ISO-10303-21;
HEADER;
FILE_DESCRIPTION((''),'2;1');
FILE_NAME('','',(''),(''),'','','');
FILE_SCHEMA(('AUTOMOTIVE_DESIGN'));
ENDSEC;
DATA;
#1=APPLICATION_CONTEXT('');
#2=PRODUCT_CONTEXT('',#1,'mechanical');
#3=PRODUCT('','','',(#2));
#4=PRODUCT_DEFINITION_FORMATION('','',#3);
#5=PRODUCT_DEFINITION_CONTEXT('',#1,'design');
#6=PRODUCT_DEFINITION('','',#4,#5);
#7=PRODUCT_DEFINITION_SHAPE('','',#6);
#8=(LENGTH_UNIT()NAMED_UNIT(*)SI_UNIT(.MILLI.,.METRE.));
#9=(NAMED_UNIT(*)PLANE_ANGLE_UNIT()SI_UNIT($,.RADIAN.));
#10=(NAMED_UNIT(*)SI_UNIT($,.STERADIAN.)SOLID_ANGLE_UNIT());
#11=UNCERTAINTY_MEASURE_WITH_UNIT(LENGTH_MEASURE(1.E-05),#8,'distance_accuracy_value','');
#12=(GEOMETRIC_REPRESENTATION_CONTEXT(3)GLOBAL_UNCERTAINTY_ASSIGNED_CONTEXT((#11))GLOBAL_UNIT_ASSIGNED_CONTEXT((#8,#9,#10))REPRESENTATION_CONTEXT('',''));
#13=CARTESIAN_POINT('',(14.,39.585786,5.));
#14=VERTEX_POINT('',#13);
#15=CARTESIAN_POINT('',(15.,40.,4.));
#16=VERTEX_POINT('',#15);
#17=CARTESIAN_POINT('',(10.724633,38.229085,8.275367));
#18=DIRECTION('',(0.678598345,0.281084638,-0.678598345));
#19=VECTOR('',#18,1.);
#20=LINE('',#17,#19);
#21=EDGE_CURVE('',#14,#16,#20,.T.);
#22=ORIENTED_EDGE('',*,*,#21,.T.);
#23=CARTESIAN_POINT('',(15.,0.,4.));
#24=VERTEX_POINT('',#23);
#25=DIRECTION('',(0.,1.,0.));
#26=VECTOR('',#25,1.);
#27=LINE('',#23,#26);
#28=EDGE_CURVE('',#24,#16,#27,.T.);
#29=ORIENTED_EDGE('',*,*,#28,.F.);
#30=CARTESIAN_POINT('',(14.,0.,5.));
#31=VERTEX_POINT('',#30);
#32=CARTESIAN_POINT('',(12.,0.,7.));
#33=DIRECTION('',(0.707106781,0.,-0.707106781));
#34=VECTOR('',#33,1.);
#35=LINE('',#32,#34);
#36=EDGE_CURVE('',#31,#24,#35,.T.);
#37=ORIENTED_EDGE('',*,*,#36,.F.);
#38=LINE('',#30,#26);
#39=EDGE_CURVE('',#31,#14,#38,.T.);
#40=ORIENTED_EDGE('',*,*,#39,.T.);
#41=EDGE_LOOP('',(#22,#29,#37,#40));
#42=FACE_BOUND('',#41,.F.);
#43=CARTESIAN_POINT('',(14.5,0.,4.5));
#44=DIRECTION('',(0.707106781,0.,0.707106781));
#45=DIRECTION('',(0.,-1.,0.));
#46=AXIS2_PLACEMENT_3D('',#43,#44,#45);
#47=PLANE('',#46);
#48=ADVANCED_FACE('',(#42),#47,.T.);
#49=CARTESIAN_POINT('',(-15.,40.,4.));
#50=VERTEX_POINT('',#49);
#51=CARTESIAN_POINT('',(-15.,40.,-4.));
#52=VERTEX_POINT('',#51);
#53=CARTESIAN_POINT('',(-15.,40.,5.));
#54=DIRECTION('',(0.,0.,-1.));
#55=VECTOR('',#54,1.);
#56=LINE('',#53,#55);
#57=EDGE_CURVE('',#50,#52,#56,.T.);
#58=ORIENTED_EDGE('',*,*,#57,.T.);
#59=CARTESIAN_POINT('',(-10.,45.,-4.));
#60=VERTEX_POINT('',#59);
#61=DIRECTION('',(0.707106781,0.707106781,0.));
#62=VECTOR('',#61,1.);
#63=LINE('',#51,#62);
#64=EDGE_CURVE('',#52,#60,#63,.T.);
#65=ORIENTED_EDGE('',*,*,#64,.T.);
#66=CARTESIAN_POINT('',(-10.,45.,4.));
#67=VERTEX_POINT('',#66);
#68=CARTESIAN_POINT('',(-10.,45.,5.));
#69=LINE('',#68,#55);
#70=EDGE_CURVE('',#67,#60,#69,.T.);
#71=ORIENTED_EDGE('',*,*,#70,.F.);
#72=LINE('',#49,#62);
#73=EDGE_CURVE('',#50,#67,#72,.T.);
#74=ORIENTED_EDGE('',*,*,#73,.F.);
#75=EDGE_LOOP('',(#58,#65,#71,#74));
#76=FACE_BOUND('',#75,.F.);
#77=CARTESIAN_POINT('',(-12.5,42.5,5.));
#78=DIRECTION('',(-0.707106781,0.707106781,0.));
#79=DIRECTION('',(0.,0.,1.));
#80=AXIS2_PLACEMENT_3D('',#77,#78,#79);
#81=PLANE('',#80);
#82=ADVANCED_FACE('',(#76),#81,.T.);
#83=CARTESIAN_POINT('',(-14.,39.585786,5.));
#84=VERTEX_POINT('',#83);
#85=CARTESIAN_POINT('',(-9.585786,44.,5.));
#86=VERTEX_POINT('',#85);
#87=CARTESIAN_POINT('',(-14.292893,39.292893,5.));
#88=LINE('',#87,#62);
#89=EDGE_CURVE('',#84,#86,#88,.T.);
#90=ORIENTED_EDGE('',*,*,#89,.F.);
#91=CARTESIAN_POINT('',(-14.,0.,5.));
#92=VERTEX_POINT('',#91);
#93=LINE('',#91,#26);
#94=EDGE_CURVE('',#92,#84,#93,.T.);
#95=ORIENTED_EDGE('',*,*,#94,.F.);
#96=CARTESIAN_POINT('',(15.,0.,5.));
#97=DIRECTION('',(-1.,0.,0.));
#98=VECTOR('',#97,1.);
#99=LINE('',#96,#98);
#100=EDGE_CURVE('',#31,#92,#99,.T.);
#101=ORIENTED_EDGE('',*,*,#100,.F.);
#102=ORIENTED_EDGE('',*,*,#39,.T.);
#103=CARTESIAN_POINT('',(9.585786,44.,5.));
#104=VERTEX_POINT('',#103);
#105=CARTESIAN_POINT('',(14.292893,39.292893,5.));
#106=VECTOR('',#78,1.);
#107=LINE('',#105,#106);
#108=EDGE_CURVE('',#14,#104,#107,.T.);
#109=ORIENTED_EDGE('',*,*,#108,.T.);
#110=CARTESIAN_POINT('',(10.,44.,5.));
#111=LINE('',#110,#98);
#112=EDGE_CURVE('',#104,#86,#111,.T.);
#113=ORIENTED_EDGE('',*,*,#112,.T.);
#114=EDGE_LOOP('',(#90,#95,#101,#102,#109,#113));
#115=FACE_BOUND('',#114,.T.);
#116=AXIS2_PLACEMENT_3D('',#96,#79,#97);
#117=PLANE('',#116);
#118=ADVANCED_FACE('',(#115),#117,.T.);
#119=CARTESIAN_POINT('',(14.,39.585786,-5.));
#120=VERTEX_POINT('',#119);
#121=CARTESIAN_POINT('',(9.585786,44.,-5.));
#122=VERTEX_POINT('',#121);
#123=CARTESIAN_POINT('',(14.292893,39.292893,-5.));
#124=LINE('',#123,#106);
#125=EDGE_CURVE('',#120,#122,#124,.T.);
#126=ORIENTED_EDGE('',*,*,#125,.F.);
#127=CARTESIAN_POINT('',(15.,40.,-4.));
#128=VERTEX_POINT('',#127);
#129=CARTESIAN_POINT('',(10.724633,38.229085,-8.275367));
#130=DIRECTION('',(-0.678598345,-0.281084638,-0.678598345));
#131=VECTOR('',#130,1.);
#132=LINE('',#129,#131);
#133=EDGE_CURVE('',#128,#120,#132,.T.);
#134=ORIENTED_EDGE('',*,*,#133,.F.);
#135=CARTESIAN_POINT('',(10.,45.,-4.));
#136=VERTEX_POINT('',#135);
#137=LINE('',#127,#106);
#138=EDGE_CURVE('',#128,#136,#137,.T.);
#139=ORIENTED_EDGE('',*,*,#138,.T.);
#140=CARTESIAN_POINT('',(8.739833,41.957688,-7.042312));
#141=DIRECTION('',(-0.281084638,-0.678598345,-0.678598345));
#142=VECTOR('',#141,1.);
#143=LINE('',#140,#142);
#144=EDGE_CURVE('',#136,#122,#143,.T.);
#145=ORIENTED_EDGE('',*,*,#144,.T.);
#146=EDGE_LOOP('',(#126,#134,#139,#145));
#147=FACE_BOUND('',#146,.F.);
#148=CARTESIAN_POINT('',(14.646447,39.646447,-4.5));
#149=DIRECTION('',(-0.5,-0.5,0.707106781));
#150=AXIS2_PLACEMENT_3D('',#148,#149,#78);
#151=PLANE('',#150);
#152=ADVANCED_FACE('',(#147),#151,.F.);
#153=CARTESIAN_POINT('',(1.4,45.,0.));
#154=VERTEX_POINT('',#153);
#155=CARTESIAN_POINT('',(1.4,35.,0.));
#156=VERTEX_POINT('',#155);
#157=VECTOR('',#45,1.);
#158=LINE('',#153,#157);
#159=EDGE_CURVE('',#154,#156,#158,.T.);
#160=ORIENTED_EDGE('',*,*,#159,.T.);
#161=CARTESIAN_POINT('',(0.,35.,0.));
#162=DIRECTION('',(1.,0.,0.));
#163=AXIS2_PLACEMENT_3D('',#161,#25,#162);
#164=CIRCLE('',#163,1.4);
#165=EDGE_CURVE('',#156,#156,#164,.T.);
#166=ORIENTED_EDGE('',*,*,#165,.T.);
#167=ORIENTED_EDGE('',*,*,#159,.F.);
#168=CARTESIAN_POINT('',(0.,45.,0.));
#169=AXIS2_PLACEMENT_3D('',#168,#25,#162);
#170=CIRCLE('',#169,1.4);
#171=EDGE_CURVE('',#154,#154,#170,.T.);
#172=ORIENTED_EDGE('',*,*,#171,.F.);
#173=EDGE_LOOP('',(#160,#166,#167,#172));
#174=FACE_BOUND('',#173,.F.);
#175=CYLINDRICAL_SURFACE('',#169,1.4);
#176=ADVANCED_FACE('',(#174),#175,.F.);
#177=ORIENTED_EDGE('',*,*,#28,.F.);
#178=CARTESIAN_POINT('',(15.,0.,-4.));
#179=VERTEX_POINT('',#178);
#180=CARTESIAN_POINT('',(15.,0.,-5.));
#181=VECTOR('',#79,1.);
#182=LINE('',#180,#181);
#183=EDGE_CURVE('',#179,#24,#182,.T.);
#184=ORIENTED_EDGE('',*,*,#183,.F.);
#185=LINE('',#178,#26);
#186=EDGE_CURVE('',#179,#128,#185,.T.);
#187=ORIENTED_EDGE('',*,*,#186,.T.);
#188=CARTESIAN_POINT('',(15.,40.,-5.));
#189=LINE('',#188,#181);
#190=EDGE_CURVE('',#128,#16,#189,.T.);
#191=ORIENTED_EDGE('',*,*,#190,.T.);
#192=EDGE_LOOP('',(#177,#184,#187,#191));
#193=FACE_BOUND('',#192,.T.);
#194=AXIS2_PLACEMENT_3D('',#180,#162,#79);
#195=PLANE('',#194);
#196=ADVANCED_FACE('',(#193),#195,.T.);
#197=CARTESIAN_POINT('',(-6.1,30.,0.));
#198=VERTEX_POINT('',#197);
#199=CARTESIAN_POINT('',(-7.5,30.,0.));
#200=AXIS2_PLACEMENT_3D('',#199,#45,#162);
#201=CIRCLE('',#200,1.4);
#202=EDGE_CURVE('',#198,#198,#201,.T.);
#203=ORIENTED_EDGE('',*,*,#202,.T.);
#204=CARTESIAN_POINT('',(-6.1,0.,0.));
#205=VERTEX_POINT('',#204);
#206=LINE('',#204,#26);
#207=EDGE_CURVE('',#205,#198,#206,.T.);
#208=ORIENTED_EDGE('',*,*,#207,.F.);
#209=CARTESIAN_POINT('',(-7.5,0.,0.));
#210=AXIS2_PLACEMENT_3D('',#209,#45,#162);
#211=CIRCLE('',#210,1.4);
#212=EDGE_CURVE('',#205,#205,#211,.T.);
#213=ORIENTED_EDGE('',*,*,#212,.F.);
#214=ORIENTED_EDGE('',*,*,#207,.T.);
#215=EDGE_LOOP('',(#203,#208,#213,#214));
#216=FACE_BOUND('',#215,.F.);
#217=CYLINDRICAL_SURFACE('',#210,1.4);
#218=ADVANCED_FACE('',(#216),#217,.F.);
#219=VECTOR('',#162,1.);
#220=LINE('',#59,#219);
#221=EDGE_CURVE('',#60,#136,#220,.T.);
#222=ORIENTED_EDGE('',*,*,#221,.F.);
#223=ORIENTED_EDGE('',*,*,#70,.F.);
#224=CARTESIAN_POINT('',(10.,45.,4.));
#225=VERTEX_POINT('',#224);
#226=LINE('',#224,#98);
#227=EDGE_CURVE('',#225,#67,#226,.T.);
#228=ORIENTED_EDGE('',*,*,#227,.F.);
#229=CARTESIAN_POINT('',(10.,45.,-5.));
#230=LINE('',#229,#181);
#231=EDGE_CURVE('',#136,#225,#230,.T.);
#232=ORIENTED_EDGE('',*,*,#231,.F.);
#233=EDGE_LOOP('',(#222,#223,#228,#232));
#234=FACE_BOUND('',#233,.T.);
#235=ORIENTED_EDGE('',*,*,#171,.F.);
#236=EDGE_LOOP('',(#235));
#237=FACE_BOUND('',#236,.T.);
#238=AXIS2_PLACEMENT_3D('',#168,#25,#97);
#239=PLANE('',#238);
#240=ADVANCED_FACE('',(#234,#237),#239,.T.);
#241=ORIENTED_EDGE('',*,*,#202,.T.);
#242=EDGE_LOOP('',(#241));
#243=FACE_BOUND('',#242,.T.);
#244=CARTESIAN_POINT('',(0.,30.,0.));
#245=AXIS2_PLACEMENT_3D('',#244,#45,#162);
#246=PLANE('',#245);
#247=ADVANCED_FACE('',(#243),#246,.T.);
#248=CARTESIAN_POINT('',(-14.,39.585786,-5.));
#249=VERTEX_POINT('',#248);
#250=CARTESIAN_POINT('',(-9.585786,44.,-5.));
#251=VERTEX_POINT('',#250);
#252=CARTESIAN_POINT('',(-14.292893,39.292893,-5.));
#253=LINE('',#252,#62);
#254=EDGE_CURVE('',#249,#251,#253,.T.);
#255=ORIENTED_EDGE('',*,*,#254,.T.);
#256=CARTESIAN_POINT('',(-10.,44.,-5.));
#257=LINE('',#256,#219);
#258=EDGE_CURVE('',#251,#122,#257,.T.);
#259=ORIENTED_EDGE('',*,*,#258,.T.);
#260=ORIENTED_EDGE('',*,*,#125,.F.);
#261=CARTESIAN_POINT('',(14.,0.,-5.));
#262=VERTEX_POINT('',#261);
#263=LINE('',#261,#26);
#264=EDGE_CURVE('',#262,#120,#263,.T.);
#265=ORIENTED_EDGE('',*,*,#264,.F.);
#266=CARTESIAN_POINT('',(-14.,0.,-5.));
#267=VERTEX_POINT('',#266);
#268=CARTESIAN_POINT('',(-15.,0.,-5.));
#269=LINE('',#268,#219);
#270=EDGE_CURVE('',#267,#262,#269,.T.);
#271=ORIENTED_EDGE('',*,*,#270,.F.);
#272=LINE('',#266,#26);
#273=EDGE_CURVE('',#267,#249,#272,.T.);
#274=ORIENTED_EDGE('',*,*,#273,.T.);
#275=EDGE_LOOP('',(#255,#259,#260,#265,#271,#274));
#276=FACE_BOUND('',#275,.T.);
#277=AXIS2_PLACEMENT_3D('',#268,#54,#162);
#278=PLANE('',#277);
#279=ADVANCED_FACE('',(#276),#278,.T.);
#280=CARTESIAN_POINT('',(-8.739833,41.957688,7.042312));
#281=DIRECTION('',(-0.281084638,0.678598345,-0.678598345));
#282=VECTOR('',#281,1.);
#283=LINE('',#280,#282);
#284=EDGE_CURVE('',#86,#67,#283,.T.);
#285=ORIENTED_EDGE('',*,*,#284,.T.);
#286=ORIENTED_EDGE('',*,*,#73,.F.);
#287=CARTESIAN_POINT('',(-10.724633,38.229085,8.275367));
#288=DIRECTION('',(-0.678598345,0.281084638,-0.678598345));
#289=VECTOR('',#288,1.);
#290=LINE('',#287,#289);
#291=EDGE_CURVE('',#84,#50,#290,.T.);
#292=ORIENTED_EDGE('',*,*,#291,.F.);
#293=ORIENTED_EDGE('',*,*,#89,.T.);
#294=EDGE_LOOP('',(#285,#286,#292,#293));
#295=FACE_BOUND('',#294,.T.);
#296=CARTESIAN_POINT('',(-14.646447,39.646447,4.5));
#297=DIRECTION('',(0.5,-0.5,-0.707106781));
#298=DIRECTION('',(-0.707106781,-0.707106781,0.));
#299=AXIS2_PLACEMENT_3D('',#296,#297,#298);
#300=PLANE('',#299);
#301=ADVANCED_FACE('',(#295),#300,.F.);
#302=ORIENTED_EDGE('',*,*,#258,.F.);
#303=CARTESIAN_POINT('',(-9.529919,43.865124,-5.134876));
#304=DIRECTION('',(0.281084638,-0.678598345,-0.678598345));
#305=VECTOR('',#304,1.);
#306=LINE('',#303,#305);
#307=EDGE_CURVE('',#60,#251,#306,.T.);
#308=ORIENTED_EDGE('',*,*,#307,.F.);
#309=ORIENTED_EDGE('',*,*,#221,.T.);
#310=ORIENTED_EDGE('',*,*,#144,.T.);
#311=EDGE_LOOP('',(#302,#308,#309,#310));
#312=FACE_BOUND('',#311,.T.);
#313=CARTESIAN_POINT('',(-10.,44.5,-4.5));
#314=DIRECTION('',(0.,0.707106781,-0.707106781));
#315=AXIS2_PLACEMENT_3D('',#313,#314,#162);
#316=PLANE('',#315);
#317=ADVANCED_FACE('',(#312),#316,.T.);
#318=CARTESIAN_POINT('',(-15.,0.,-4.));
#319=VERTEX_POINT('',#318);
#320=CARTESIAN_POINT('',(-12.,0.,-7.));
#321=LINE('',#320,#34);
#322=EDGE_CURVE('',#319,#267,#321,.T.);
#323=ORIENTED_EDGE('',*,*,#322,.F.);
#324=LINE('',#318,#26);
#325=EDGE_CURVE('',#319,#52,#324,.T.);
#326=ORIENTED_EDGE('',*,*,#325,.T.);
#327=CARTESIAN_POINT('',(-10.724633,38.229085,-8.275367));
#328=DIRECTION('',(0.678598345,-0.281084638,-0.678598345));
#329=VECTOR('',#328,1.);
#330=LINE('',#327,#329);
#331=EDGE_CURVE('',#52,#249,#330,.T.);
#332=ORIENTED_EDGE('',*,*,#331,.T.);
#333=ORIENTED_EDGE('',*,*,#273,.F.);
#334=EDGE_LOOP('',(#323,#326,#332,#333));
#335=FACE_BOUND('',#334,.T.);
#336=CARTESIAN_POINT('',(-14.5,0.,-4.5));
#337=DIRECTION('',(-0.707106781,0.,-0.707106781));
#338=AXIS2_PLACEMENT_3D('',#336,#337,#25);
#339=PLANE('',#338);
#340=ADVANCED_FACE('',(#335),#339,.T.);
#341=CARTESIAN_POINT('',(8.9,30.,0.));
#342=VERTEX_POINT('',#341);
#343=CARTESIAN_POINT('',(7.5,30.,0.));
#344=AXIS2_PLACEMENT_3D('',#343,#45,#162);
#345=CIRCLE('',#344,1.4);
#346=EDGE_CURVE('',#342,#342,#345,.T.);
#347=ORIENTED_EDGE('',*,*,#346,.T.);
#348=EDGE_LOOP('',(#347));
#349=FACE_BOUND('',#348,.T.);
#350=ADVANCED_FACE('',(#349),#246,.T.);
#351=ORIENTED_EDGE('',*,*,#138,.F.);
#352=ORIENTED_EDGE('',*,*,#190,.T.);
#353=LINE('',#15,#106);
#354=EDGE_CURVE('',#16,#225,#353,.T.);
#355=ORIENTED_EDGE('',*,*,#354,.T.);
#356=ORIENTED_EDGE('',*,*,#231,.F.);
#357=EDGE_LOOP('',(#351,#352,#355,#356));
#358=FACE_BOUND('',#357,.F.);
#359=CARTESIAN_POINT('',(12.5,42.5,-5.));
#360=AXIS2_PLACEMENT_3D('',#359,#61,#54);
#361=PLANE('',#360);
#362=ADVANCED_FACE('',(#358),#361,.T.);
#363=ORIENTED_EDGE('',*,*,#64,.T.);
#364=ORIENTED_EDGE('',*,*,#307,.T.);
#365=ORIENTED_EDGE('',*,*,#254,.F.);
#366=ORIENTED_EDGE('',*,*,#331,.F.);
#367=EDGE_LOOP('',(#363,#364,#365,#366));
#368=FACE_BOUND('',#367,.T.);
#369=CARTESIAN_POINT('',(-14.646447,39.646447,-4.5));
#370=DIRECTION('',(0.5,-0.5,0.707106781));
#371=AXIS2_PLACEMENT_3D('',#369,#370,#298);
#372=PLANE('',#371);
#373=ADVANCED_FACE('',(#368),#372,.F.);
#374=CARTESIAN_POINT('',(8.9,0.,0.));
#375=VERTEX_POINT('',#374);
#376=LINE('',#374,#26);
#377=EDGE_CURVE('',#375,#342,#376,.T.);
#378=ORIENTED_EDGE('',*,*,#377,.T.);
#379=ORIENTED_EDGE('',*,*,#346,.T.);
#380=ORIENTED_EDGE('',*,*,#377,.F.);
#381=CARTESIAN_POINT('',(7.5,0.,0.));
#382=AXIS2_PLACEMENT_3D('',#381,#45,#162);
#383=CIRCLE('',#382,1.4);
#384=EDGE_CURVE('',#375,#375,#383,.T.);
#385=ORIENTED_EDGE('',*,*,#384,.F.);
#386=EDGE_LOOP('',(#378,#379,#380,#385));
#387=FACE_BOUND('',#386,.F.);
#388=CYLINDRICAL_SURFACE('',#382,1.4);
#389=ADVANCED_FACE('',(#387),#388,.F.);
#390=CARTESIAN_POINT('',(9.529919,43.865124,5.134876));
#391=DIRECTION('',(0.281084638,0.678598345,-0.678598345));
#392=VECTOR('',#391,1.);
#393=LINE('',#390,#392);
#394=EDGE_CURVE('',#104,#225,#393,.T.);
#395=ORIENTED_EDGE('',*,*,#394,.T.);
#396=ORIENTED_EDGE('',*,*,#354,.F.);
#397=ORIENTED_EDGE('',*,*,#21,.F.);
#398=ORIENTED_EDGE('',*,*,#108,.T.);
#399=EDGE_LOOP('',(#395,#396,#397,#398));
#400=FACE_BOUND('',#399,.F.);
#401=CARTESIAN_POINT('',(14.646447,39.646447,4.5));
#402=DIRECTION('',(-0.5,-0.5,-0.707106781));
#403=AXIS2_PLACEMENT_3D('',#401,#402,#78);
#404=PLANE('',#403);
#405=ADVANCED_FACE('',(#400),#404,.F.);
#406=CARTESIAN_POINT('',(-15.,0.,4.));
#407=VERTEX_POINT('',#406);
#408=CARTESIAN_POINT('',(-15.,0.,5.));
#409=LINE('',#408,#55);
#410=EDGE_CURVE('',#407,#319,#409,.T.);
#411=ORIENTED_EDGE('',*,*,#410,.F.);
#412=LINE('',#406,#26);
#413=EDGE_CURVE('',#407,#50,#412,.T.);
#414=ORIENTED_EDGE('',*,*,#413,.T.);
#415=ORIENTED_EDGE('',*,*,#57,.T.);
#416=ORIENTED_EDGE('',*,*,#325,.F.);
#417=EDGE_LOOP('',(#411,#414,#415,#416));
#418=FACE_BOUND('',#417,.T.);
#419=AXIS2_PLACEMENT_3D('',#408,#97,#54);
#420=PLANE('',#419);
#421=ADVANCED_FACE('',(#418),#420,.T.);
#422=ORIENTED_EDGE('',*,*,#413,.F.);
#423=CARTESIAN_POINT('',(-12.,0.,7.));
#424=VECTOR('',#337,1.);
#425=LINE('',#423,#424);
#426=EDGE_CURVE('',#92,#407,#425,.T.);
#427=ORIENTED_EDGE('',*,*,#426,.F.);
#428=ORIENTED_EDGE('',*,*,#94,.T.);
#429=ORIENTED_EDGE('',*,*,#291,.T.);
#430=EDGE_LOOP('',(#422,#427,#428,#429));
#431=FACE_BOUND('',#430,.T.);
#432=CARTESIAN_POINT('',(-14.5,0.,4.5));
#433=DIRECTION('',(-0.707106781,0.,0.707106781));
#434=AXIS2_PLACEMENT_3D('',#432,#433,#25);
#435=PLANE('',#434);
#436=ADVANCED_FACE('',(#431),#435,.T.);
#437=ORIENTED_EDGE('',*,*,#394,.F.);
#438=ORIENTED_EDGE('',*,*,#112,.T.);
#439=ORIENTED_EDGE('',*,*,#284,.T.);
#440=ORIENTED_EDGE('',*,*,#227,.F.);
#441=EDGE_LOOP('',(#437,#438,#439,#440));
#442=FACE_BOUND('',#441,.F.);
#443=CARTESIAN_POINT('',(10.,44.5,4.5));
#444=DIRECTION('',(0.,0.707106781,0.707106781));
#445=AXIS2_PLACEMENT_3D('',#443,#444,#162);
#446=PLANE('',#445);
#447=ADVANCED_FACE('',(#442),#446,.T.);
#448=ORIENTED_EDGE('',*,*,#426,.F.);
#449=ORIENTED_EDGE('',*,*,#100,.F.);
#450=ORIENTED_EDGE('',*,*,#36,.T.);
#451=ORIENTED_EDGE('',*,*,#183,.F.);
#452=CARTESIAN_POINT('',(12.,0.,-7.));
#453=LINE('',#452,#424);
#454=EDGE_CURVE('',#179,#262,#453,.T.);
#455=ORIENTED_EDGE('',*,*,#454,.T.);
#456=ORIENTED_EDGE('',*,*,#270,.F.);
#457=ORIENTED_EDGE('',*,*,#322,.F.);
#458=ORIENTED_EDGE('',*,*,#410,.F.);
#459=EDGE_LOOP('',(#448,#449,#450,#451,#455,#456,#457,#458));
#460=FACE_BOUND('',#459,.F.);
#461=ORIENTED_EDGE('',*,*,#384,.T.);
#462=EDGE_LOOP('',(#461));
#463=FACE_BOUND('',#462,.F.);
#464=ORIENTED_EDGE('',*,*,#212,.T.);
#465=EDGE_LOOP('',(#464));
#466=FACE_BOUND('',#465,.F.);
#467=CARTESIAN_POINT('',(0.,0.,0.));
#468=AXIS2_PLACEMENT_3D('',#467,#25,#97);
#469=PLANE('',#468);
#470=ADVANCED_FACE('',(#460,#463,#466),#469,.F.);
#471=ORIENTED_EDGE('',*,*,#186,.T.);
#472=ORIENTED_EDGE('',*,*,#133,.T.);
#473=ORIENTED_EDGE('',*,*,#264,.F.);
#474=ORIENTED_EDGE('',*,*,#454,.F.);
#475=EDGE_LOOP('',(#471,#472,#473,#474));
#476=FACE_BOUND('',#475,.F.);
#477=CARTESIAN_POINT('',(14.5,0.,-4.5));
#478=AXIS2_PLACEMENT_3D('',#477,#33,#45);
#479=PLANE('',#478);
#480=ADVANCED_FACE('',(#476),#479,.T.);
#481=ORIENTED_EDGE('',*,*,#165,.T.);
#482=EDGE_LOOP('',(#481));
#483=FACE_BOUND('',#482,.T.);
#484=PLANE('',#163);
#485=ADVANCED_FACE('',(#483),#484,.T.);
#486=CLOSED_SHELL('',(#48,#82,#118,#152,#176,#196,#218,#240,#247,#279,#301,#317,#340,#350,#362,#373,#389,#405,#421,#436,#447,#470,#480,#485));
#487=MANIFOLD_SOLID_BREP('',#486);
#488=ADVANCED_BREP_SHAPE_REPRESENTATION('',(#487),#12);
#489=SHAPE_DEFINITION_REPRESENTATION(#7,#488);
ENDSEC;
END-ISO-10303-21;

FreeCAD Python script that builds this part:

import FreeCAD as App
import Part
import Sketcher
from FreeCAD import Vector


def edges_at(feature, points):
    """Names of the edges that pass closest to the given points."""
    edges = feature.Shape.Edges
    near = lambda p: min(range(len(edges)), key=lambda i: edges[i].distToShape(Part.Vertex(*p))[0])
    return sorted({f"Edge{near(p) + 1}" for p in points})

doc = App.newDocument("Part")
params = doc.addObject("Spreadsheet::Sheet", "Params")
for row, (alias, value) in enumerate([
    ("sketch1_width", "30 mm"),
    ("sketch1_height", "10 mm"),
    ("pad1_length", "45 mm"),
    ("sketch2_diameter", "2.8 mm"),
    ("pocket1_length", "30 mm"),
    ("sketch3_diameter", "2.8 mm"),
    ("pocket2_length", "10 mm"),
    ("chamfer_size", "5 mm"),
    ("chamfer2_size", "1 mm"),
], start=1):
    params.set(f"A{row}", alias)
    params.set(f"B{row}", "=" + value)
    params.setAlias(f"B{row}", alias)

body = doc.addObject("PartDesign::Body", "Body")

# Sketch on XZ plane
sketch1 = body.newObject("Sketcher::SketchObject", "Sketch")
sketch1.AttachmentSupport = (doc.getObject("XZ_Plane"), [""])
sketch1.MapMode = "FlatFace"
sketch1.addGeometry([
    Part.LineSegment(Vector(-15, 5, 0), Vector(15, 5, 0)),
    Part.LineSegment(Vector(15, 5, 0), Vector(15, -5, 0)),
    Part.LineSegment(Vector(15, -5, 0), Vector(-15, -5, 0)),
    Part.LineSegment(Vector(-15, -5, 0), Vector(-15, 5, 0)),
], False)
sketch1.addConstraint([
    Sketcher.Constraint("Coincident", 0, 2, 1, 1),
    Sketcher.Constraint("Coincident", 1, 2, 2, 1),
    Sketcher.Constraint("Coincident", 2, 2, 3, 1),
    Sketcher.Constraint("Coincident", 3, 2, 0, 1),
    Sketcher.Constraint("Horizontal", 0),
    Sketcher.Constraint("Vertical", 1),
    Sketcher.Constraint("Horizontal", 2),
    Sketcher.Constraint("Vertical", 3),
    Sketcher.Constraint("Symmetric", 0, 2, 2, 2, -1, 1),
    Sketcher.Constraint("DistanceX", 0, 1, 0, 2, 30.0),
    Sketcher.Constraint("DistanceY", 1, 2, 1, 1, 10.0),
])
sketch1.setExpression("Constraints[9]", "Params.sketch1_width")
sketch1.setExpression("Constraints[10]", "Params.sketch1_height")
pad1 = body.newObject("PartDesign::Pad", "Pad")
pad1.Profile = sketch1
pad1.setExpression("Length", "Params.pad1_length")
pad1.Reversed = True

# Sketch on XZ plane
sketch2 = body.newObject("Sketcher::SketchObject", "Sketch001")
sketch2.AttachmentSupport = (doc.getObject("XZ_Plane"), [""])
sketch2.MapMode = "FlatFace"
sketch2.addGeometry([
    Part.Circle(Vector(7.5, 0, 0), Vector(0, 0, 1), 1.4),
    Part.Circle(Vector(-7.5, 0, 0), Vector(0, 0, 1), 1.4),
], False)
sketch2.addConstraint([
    Sketcher.Constraint("Equal", 0, 1),
    Sketcher.Constraint("Symmetric", 0, 3, 1, 3, -1, 1),
    Sketcher.Constraint("PointOnObject", 0, 3, -1),
    Sketcher.Constraint("Diameter", 0, 2.8),
    Sketcher.Constraint("DistanceX", 1, 3, 0, 3, 15.0),
])
sketch2.setExpression("Constraints[3]", "Params.sketch2_diameter")
pocket1 = body.newObject("PartDesign::Pocket", "Pocket")
pocket1.Profile = sketch2
pocket1.setExpression("Length", "Params.pocket1_length")

# Sketch on XZ plane
sketch3 = body.newObject("Sketcher::SketchObject", "Sketch002")
sketch3.AttachmentSupport = (doc.getObject("XZ_Plane"), [""])
sketch3.MapMode = "FlatFace"
sketch3.AttachmentOffset = App.Placement(Vector(0, 0, -45), App.Rotation())
sketch3.addGeometry(Part.Circle(Vector(0, 0, 0), Vector(0, 0, 1), 1.4), False)
sketch3.addConstraint([
    Sketcher.Constraint("Coincident", 0, 3, -1, 1),
    Sketcher.Constraint("Diameter", 0, 2.8),
])
sketch3.setExpression("Constraints[1]", "Params.sketch3_diameter")
pocket2 = body.newObject("PartDesign::Pocket", "Pocket001")
pocket2.Profile = sketch3
pocket2.setExpression("Length", "Params.pocket2_length")
pocket2.Reversed = True
doc.recompute()

chamfer = body.newObject("PartDesign::Chamfer", "Chamfer")
chamfer.Base = (pocket2, edges_at(pocket2, [(15, 45, 0), (-15, 45, 0)]))
chamfer.setExpression("Size", "Params.chamfer_size")
doc.recompute()

chamfer2 = body.newObject("PartDesign::Chamfer", "Chamfer001")
chamfer2.Base = (chamfer, edges_at(chamfer, [
    (15, 20, -5),
    (12.5, 42.5, -5),
    (0, 45, -5),
    (-12.5, 42.5, -5),
    (-15, 20, -5),
    (-15, 20, 5),
    (-12.5, 42.5, 5),
    (0, 45, 5),
    (12.5, 42.5, 5),
    (15, 20, 5),
]))
chamfer2.setExpression("Size", "Params.chamfer2_size")

doc.recompute()
